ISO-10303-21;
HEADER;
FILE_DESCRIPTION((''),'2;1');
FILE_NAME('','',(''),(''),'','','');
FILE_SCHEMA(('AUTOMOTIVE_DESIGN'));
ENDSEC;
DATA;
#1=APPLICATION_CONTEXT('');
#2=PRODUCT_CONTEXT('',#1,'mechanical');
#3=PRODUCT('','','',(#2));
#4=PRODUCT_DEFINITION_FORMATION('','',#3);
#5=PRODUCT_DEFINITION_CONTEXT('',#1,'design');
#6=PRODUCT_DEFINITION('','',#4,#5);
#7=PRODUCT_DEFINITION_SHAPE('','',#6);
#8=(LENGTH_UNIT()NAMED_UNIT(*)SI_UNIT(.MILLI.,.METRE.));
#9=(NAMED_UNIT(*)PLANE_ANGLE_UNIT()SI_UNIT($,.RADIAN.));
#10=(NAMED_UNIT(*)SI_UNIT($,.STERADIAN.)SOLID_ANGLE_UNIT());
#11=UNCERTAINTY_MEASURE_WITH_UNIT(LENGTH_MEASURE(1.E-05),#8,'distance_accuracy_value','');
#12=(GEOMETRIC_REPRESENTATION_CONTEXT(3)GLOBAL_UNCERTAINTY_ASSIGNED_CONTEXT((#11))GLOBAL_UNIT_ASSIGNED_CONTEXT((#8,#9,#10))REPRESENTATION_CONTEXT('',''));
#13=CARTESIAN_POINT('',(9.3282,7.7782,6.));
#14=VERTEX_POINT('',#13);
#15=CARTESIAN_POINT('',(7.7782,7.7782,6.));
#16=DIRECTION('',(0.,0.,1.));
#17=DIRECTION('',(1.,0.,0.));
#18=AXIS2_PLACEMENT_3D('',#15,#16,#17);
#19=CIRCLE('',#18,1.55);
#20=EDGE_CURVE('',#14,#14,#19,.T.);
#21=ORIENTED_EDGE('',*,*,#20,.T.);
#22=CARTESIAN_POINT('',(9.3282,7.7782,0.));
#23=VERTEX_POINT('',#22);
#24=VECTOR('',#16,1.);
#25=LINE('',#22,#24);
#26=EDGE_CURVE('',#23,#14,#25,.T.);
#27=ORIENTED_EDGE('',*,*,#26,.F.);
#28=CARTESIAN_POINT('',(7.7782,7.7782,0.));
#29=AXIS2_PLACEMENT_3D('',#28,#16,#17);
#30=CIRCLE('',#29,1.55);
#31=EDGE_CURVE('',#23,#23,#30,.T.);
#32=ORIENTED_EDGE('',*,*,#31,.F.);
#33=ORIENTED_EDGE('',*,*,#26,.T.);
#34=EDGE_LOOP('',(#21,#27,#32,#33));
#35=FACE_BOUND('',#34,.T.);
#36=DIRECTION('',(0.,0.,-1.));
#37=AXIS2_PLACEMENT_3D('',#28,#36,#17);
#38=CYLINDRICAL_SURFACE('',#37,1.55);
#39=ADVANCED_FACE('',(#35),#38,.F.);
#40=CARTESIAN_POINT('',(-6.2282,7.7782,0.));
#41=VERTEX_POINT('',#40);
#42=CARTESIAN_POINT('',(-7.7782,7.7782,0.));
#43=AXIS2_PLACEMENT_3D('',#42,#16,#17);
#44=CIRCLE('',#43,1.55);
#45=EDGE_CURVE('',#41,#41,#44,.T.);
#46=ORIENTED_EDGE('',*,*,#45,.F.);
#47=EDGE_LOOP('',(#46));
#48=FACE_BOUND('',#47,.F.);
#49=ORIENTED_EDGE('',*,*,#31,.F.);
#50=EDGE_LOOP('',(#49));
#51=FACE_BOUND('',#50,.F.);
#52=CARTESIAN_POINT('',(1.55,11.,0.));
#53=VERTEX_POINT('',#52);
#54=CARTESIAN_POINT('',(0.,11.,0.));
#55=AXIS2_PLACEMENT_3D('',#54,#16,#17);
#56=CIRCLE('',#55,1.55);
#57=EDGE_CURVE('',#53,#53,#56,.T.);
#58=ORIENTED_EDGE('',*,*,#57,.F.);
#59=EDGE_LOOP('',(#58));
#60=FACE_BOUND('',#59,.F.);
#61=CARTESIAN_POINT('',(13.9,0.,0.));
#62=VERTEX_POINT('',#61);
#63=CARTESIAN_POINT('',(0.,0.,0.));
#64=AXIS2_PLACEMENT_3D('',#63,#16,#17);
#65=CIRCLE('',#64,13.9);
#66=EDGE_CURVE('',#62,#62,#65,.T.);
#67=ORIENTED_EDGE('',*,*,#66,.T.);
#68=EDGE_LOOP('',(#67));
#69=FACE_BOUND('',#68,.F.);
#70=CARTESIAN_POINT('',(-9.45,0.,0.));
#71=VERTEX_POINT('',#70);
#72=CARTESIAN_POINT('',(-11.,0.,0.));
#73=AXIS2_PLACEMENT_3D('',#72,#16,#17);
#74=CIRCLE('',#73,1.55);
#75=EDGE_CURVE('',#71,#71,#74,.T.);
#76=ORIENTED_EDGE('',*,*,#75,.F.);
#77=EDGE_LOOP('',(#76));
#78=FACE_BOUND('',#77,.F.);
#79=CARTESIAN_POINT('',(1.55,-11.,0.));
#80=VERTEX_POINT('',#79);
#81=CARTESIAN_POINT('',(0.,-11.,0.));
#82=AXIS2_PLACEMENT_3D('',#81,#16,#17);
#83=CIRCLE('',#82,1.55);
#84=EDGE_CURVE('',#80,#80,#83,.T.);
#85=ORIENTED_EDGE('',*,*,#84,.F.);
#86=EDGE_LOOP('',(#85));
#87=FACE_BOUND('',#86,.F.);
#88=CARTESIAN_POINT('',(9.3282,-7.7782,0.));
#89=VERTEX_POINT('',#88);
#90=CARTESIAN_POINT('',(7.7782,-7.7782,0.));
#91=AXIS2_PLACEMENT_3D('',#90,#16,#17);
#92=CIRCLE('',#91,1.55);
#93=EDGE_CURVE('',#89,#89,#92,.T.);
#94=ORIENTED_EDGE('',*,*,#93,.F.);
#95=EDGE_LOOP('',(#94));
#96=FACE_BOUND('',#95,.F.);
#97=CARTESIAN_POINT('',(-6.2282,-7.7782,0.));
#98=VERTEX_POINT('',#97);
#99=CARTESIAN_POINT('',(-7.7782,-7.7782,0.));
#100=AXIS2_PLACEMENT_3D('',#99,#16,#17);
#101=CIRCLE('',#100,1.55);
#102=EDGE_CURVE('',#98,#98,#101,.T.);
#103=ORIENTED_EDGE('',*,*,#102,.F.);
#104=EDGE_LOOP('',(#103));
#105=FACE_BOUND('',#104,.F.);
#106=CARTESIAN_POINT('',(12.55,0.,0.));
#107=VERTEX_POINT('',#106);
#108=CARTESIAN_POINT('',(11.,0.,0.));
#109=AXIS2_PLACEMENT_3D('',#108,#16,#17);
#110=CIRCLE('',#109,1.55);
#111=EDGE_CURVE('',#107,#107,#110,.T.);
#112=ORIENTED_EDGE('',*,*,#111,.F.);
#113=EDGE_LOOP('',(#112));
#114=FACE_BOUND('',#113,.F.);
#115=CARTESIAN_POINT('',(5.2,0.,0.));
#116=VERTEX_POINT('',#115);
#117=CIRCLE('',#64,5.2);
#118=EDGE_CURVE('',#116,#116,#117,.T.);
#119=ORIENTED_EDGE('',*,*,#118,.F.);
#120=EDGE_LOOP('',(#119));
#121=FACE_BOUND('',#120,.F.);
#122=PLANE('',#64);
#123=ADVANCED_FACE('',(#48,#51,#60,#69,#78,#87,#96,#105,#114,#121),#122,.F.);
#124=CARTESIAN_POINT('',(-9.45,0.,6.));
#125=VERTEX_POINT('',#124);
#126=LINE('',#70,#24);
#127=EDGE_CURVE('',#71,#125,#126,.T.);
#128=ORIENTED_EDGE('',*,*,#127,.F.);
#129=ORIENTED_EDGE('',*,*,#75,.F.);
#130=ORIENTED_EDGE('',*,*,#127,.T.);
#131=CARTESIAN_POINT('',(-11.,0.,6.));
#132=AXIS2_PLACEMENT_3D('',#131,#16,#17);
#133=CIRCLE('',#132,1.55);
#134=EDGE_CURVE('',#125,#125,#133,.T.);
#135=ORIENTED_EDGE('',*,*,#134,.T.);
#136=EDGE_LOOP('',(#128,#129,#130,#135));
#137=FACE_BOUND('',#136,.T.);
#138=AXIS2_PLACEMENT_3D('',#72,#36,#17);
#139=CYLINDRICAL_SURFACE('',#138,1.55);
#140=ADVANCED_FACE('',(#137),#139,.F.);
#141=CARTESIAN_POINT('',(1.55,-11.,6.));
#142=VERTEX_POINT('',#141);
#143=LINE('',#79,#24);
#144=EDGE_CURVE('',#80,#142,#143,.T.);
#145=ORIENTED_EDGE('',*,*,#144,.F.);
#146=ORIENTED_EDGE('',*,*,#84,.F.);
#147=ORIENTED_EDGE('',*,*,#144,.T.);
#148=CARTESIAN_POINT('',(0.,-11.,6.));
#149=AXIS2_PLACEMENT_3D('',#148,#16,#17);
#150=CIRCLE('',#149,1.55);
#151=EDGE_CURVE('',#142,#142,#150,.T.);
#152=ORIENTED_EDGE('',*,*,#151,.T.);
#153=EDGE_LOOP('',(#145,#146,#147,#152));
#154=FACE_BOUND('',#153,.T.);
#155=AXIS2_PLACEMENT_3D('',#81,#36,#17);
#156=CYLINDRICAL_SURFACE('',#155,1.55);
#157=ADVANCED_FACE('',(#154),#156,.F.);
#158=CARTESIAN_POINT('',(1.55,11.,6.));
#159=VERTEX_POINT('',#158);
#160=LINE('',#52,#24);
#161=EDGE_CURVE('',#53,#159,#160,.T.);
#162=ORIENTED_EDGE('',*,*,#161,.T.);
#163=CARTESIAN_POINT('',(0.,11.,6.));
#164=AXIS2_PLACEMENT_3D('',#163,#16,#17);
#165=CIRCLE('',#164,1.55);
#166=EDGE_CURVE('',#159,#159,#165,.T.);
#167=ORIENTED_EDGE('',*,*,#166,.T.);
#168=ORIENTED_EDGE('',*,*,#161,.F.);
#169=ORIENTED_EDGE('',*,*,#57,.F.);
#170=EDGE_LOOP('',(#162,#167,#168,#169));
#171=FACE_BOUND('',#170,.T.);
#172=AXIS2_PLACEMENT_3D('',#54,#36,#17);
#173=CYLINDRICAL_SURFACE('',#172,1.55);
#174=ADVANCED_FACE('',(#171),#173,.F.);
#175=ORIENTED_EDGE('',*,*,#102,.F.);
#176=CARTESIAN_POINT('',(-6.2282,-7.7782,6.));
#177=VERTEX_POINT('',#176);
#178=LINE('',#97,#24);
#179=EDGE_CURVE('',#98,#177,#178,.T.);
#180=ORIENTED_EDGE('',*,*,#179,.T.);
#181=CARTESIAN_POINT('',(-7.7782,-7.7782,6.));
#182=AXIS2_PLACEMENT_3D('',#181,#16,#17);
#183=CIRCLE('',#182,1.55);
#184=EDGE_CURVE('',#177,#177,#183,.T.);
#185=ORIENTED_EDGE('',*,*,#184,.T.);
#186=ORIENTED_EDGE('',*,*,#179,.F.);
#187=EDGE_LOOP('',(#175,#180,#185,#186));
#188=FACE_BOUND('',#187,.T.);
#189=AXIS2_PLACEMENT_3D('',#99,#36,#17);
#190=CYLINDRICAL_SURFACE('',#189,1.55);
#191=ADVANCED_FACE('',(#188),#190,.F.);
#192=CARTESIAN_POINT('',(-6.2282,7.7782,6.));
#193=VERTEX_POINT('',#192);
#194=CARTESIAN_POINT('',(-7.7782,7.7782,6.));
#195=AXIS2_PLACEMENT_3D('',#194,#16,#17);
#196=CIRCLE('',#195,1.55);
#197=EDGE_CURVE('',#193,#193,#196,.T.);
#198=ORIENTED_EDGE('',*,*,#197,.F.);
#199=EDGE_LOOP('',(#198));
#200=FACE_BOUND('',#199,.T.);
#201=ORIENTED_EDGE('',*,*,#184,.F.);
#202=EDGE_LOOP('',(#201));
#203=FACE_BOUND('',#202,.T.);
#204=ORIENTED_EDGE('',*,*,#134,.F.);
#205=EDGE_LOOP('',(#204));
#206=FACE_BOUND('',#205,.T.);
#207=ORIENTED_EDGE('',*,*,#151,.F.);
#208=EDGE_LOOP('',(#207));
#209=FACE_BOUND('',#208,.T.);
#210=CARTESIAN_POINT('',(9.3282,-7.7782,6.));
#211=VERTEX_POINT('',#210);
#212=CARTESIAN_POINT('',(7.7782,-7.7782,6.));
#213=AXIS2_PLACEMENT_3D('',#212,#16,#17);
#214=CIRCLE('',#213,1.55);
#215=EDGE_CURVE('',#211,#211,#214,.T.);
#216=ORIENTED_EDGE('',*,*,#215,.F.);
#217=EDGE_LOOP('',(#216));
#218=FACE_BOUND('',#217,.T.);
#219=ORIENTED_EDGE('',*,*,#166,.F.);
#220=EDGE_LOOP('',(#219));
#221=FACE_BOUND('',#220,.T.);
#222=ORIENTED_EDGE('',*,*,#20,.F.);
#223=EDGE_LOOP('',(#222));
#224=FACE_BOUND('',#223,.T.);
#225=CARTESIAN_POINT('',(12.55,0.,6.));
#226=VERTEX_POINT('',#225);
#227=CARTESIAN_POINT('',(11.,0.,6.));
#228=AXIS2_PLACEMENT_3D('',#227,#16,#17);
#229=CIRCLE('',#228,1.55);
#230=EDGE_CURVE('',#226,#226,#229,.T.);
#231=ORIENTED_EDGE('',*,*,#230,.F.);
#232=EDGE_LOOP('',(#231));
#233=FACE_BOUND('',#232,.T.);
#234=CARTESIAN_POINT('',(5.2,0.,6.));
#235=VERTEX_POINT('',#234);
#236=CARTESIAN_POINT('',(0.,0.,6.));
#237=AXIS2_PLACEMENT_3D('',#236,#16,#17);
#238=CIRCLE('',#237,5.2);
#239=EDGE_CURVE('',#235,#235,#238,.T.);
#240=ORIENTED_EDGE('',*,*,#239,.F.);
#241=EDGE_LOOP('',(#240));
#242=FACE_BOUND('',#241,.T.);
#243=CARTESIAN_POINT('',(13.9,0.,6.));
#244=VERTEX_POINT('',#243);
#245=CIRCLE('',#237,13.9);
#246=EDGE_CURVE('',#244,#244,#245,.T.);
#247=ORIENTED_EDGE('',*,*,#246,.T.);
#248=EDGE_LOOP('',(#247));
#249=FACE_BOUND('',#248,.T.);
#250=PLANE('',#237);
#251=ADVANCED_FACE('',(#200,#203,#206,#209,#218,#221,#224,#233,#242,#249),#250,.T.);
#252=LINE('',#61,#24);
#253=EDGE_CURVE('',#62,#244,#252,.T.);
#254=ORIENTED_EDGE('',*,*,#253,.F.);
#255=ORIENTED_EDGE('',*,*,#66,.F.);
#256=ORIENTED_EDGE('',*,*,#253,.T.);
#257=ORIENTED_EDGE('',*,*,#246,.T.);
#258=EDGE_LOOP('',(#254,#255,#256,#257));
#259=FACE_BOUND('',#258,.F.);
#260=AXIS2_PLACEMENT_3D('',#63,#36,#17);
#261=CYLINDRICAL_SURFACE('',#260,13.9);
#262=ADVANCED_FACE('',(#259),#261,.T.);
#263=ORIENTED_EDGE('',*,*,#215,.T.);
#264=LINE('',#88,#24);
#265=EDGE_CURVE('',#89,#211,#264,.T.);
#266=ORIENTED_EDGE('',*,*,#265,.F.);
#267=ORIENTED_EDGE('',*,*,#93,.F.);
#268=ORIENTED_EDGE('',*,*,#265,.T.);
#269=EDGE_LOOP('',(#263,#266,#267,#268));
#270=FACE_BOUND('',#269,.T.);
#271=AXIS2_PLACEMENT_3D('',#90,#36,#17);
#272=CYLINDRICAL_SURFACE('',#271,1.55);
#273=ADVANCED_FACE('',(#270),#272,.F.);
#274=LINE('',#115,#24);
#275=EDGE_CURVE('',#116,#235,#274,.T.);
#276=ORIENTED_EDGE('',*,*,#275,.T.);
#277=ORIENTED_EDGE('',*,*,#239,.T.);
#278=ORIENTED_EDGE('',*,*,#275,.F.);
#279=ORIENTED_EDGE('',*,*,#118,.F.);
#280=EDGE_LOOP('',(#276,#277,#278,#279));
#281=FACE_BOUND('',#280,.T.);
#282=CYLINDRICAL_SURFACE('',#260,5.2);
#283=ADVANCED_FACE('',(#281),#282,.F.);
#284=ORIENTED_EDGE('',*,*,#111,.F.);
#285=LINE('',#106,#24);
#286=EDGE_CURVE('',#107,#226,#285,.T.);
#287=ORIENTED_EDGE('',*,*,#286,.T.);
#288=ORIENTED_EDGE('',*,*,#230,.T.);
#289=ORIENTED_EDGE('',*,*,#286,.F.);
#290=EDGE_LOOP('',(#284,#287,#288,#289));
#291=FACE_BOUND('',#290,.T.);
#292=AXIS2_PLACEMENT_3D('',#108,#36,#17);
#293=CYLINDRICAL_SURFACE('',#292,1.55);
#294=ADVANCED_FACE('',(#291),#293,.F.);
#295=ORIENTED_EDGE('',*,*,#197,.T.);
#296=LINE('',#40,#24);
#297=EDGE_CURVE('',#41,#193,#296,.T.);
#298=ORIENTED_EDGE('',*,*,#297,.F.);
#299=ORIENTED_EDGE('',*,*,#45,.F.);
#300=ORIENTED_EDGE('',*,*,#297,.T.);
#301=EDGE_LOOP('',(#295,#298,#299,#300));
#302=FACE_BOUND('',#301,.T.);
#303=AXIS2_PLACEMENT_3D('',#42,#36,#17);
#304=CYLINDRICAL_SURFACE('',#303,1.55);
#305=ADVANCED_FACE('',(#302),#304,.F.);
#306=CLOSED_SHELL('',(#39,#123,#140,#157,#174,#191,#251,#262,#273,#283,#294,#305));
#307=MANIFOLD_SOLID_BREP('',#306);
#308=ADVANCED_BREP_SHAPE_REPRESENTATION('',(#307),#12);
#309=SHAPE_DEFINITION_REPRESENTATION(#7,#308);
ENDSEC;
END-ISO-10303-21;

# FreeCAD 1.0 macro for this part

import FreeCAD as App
import Part
import Sketcher

V = App.Vector
Q = App.Units.Quantity

doc = App.newDocument("Part")
body = doc.addObject("PartDesign::Body", "Body")

# Sketch on XY plane
sketch1 = doc.addObject("Sketcher::SketchObject", "Sketch")
body.addObject(sketch1)
sketch1.AttachmentSupport = (doc.XY_Plane, [""])
sketch1.MapMode = "FlatFace"
sketch1.addGeometry([
    Part.Circle(V(0, 0, 0), V(0, 0, 1), 13.9),  # 0
    Part.Circle(V(-7.8, -7.8, 0), V(0, 0, 1), 1.6),  # 1
    Part.Circle(V(0, -11, 0), V(0, 0, 1), 1.6),  # 2
    Part.Circle(V(7.8, -7.8, 0), V(0, 0, 1), 1.6),  # 3
    Part.Circle(V(-11, 0, 0), V(0, 0, 1), 1.6),  # 4
    Part.Circle(V(-7.8, 7.8, 0), V(0, 0, 1), 1.6),  # 5
    Part.Circle(V(0, 0, 0), V(0, 0, 1), 5.2),  # 6
    Part.Circle(V(11, 0, 0), V(0, 0, 1), 1.6),  # 7
    Part.Circle(V(0, 11, 0), V(0, 0, 1), 1.6),  # 8
    Part.Circle(V(7.8, 7.8, 0), V(0, 0, 1), 1.6),  # 9
], False)
sketch1.addConstraint([
    Sketcher.Constraint("Coincident", 0, 3, -1, 1),
    Sketcher.Constraint("Coincident", 6, 3, -1, 1),
    Sketcher.Constraint("Equal", 1, 2),
    Sketcher.Constraint("Equal", 2, 3),
    Sketcher.Constraint("Equal", 3, 4),
    Sketcher.Constraint("Equal", 4, 5),
    Sketcher.Constraint("Equal", 5, 7),
    Sketcher.Constraint("Equal", 7, 8),
    Sketcher.Constraint("Equal", 8, 9),
    Sketcher.Constraint("Symmetric", 3, 3, 5, 3, -1, 1),
    Sketcher.Constraint("Symmetric", 4, 3, 7, 3, -1, 1),
    Sketcher.Constraint("Symmetric", 2, 3, 8, 3, -1, 1),
    Sketcher.Constraint("Symmetric", 1, 3, 9, 3, -1, 1),
    Sketcher.Constraint("Symmetric", 1, 3, 3, 3, -2),
    Sketcher.Constraint("PointOnObject", 2, 3, -2),
    Sketcher.Constraint("PointOnObject", 4, 3, -1),
    Sketcher.Constraint("Diameter", 0, Q("27.8 mm")),
    Sketcher.Constraint("Diameter", 1, Q("3.1 mm")),
    Sketcher.Constraint("Diameter", 6, Q("10.4 mm")),
    Sketcher.Constraint("DistanceY", 2, 3, -1, 1, Q("11 mm")),
    Sketcher.Constraint("DistanceX", 4, 3, -1, 1, Q("11 mm")),
    Sketcher.Constraint("DistanceX", 1, 3, -1, 1, Q("7.7782 mm")),
    Sketcher.Constraint("DistanceY", 1, 3, -1, 1, Q("7.7782 mm")),
])
pad1 = doc.addObject("PartDesign::Pad", "Pad")
body.addObject(pad1)
pad1.Profile = sketch1
pad1.Length = 6

doc.recompute()
